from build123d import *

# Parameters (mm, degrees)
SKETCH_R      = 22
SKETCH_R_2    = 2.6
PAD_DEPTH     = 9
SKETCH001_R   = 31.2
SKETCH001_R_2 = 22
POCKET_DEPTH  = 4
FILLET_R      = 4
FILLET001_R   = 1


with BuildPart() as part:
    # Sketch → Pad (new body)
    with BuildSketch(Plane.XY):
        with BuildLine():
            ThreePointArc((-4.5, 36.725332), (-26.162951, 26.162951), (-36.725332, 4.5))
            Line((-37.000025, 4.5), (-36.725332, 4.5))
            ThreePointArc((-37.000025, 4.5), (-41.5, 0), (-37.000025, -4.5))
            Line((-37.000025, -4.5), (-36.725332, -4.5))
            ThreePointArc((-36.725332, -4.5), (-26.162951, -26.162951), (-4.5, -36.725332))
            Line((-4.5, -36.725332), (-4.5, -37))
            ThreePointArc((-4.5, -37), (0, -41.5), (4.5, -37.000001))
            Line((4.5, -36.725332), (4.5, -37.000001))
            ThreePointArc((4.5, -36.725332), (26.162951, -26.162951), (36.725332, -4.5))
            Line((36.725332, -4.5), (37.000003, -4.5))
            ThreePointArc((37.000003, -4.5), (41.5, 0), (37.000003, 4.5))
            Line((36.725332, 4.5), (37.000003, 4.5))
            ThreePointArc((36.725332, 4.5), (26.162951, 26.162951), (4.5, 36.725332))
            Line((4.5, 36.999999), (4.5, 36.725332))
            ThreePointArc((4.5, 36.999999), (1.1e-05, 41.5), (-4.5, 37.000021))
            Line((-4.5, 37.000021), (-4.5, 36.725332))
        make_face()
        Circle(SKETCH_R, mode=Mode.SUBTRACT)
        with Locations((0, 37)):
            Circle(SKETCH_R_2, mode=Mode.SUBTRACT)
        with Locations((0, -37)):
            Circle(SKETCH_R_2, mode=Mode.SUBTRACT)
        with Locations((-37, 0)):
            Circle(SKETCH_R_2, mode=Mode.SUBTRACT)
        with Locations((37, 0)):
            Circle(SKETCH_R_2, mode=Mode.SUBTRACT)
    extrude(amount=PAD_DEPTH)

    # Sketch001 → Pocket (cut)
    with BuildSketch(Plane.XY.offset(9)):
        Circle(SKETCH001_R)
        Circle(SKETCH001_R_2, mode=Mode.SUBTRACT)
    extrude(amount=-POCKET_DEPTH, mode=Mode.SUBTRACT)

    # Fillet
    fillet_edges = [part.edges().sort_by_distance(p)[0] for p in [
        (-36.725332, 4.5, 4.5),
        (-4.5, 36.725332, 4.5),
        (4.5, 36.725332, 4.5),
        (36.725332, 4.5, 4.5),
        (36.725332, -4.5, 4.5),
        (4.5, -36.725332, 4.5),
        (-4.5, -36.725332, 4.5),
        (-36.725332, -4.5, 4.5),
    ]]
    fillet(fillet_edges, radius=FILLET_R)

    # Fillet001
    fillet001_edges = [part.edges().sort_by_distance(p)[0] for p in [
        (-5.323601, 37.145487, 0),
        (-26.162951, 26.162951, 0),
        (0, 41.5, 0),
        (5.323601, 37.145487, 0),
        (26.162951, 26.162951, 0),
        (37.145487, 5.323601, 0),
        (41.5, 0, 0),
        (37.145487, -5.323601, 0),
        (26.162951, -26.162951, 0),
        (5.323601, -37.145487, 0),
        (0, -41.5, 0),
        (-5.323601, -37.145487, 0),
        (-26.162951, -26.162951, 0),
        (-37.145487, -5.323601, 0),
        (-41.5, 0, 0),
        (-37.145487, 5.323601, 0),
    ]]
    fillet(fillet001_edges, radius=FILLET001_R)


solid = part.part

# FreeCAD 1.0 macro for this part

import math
import FreeCAD as App
import Part
import Sketcher
from FreeCAD import Vector
Q = App.Units.Quantity


def edges_at(feature, points):
    """Names of the edges that pass closest to the given points."""
    edges = feature.Shape.Edges
    near = lambda p: min(range(len(edges)), key=lambda i: edges[i].distToShape(Part.Vertex(*p))[0])
    return sorted({f"Edge{near(p) + 1}" for p in points})

doc = App.newDocument("Part")
body = doc.addObject("PartDesign::Body", "Body")

# Sketch on XY plane
sketch1 = body.newObject("Sketcher::SketchObject", "Sketch")
sketch1.AttachmentSupport = (doc.getObject("XY_Plane"), [""])
sketch1.MapMode = "FlatFace"
sketch1.addGeometry([
    Part.ArcOfCircle(Part.Circle(Vector(0, 0, 0), Vector(0, 0, 1), 37), math.radians(97), math.radians(173)),  # 0
    Part.LineSegment(Vector(-36.73, 4.5, 0), Vector(-37, 4.5, 0)),  # 1
    Part.ArcOfCircle(Part.Circle(Vector(-37, 0, 0), Vector(0, 0, 1), 4.5), math.radians(90), math.radians(270)),  # 2
    Part.LineSegment(Vector(-37, -4.5, 0), Vector(-36.73, -4.5, 0)),  # 3
    Part.ArcOfCircle(Part.Circle(Vector(0, 0, 0), Vector(0, 0, 1), 37), math.radians(-173), math.radians(-97)),  # 4
    Part.LineSegment(Vector(-4.5, -36.73, 0), Vector(-4.5, -37, 0)),  # 5
    Part.ArcOfCircle(Part.Circle(Vector(0, -37, 0), Vector(0, 0, 1), 4.5), math.radians(180), math.radians(360)),  # 6
    Part.LineSegment(Vector(4.5, -37, 0), Vector(4.5, -36.73, 0)),  # 7
    Part.ArcOfCircle(Part.Circle(Vector(0, 0, 0), Vector(0, 0, 1), 37), math.radians(-83), math.radians(-7)),  # 8
    Part.LineSegment(Vector(36.73, -4.5, 0), Vector(37, -4.5, 0)),  # 9
    Part.ArcOfCircle(Part.Circle(Vector(37, 0, 0), Vector(0, 0, 1), 4.5), math.radians(-90), math.radians(90)),  # 10
    Part.LineSegment(Vector(37, 4.5, 0), Vector(36.73, 4.5, 0)),  # 11
    Part.ArcOfCircle(Part.Circle(Vector(0, 0, 0), Vector(0, 0, 1), 37), math.radians(7), math.radians(83)),  # 12
    Part.LineSegment(Vector(4.5, 36.73, 0), Vector(4.5, 37, 0)),  # 13
    Part.ArcOfCircle(Part.Circle(Vector(0, 37, 0), Vector(0, 0, 1), 4.5), math.radians(0), math.radians(180)),  # 14
    Part.LineSegment(Vector(-4.5, 37, 0), Vector(-4.5, 36.73, 0)),  # 15
    Part.Circle(Vector(0, -37, 0), Vector(0, 0, 1), 2.6),  # 16
    Part.Circle(Vector(-37, 0, 0), Vector(0, 0, 1), 2.6),  # 17
    Part.Circle(Vector(0, 0, 0), Vector(0, 0, 1), 22),  # 18
    Part.Circle(Vector(37, 0, 0), Vector(0, 0, 1), 2.6),  # 19
    Part.Circle(Vector(0, 37, 0), Vector(0, 0, 1), 2.6),  # 20
], False)
sketch1.addConstraint([
    Sketcher.Constraint("Coincident", 0, 2, 1, 1),
    Sketcher.Constraint("Coincident", 1, 2, 2, 1),
    Sketcher.Constraint("Coincident", 2, 2, 3, 1),
    Sketcher.Constraint("Coincident", 3, 2, 4, 1),
    Sketcher.Constraint("Coincident", 4, 2, 5, 1),
    Sketcher.Constraint("Tangent", 5, 2, 6, 1),
    Sketcher.Constraint("Tangent", 6, 2, 7, 1),
    Sketcher.Constraint("Coincident", 7, 2, 8, 1),
    Sketcher.Constraint("Coincident", 8, 2, 9, 1),
    Sketcher.Constraint("Tangent", 9, 2, 10, 1),
    Sketcher.Constraint("Tangent", 10, 2, 11, 1),
    Sketcher.Constraint("Coincident", 11, 2, 12, 1),
    Sketcher.Constraint("Coincident", 12, 2, 13, 1),
    Sketcher.Constraint("Tangent", 13, 2, 14, 1),
    Sketcher.Constraint("Coincident", 14, 2, 15, 1),
    Sketcher.Constraint("Coincident", 15, 2, 0, 1),
    Sketcher.Constraint("Horizontal", 1),
    Sketcher.Constraint("Horizontal", 3),
    Sketcher.Constraint("Vertical", 5),
    Sketcher.Constraint("Vertical", 7),
    Sketcher.Constraint("Horizontal", 9),
    Sketcher.Constraint("Horizontal", 11),
    Sketcher.Constraint("Vertical", 13),
    Sketcher.Constraint("Vertical", 15),
    Sketcher.Constraint("Coincident", 0, 3, -1, 1),
    Sketcher.Constraint("Coincident", 4, 3, -1, 1),
    Sketcher.Constraint("Coincident", 8, 3, -1, 1),
    Sketcher.Constraint("Coincident", 12, 3, -1, 1),
    Sketcher.Constraint("Coincident", 18, 3, -1, 1),
    Sketcher.Constraint("Coincident", 16, 3, 6, 3),
    Sketcher.Constraint("Coincident", 17, 3, 2, 3),
    Sketcher.Constraint("Coincident", 19, 3, 10, 3),
    Sketcher.Constraint("Coincident", 20, 3, 14, 3),
    Sketcher.Constraint("Equal", 0, 4),
    Sketcher.Constraint("Equal", 2, 6),
    Sketcher.Constraint("Equal", 4, 8),
    Sketcher.Constraint("Equal", 6, 10),
    Sketcher.Constraint("Equal", 8, 12),
    Sketcher.Constraint("Equal", 10, 14),
    Sketcher.Constraint("Equal", 16, 17),
    Sketcher.Constraint("Equal", 17, 19),
    Sketcher.Constraint("Equal", 19, 20),
    Sketcher.Constraint("Symmetric", 2, 3, 10, 3, -1, 1),
    Sketcher.Constraint("Symmetric", 6, 3, 14, 3, -1, 1),
    Sketcher.Constraint("Symmetric", 1, 2, 2, 2, -1),
    Sketcher.Constraint("PointOnObject", 6, 3, -2),
    Sketcher.Constraint("Diameter", 18, Q("44 mm")),
    Sketcher.Constraint("Radius", 0, Q("37 mm")),
    Sketcher.Constraint("Diameter", 16, Q("5.2 mm")),
    Sketcher.Constraint("Radius", 2, Q("4.5 mm")),
    Sketcher.Constraint("DistanceX", 2, 3, -1, 1, Q("37 mm")),
    Sketcher.Constraint("DistanceY", 6, 3, -1, 1, Q("37 mm")),
    Sketcher.Constraint("DistanceY", 15, 2, 15, 1, Q("0.274689 mm")),
    Sketcher.Constraint("DistanceX", 1, 2, 1, 1, Q("0.274693 mm")),
])
pad1 = body.newObject("PartDesign::Pad", "Pad")
pad1.Profile = sketch1
pad1.Length = 9

# Sketch on XY plane
sketch2 = body.newObject("Sketcher::SketchObject", "Sketch001")
sketch2.AttachmentSupport = (doc.getObject("XY_Plane"), [""])
sketch2.MapMode = "FlatFace"
sketch2.AttachmentOffset = App.Placement(Vector(0, 0, 9), App.Rotation())
sketch2.addGeometry([
    Part.Circle(Vector(0, 0, 0), Vector(0, 0, 1), 31),
    Part.Circle(Vector(0, 0, 0), Vector(0, 0, 1), 22),
], False)
sketch2.addConstraint([
    Sketcher.Constraint("Coincident", 0, 3, -1, 1),
    Sketcher.Constraint("Coincident", 1, 3, -1, 1),
    Sketcher.Constraint("Diameter", 1, Q("44 mm")),
    Sketcher.Constraint("Diameter", 0, Q("62.4 mm")),
])
pocket1 = body.newObject("PartDesign::Pocket", "Pocket")
pocket1.Profile = sketch2
pocket1.Length = 4
doc.recompute()

fillet = body.newObject("PartDesign::Fillet", "Fillet")
fillet.Base = (pocket1, edges_at(pocket1, [
    (-36.725, 4.5, 4.5),
    (-4.5, 36.725, 4.5),
    (4.5, 36.725, 4.5),
    (36.725, 4.5, 4.5),
    (36.725, -4.5, 4.5),
    (4.5, -36.725, 4.5),
    (-4.5, -36.725, 4.5),
    (-36.725, -4.5, 4.5),
]))
fillet.Radius = 4
doc.recompute()

fillet2 = body.newObject("PartDesign::Fillet", "Fillet001")
fillet2.Base = (fillet, edges_at(fillet, [
    (-5.324, 37.145, 0),
    (-26.163, 26.163, 0),
    (0, 41.5, 0),
    (5.324, 37.145, 0),
    (26.163, 26.163, 0),
    (37.145, 5.324, 0),
    (41.5, 0, 0),
    (37.145, -5.324, 0),
    (26.163, -26.163, 0),
    (5.324, -37.145, 0),
    (0, -41.5, 0),
    (-5.324, -37.145, 0),
    (-26.163, -26.163, 0),
    (-37.145, -5.324, 0),
    (-41.5, 0, 0),
    (-37.145, 5.324, 0),
]))
fillet2.Radius = 1

doc.recompute()
